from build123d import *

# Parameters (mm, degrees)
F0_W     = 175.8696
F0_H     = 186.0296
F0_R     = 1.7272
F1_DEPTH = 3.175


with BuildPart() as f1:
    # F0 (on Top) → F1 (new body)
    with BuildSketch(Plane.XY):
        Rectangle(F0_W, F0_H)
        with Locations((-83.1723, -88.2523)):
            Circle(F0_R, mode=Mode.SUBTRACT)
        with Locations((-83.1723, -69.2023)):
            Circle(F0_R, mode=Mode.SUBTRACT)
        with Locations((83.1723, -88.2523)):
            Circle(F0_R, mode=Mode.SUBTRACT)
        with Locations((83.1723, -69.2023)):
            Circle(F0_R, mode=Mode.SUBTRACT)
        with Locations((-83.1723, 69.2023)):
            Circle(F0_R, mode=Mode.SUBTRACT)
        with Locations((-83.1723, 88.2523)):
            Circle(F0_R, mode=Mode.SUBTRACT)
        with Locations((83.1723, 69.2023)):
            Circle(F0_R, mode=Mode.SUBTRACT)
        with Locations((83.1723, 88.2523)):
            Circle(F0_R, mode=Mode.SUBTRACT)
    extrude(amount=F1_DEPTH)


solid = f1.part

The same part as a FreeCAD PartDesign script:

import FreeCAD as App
import Part
import Sketcher
from FreeCAD import Vector
Q = App.Units.Quantity

doc = App.newDocument("Part")
params = doc.addObject("Spreadsheet::Sheet", "Params")
for row, (alias, value) in enumerate([
    ("sketch1_diameter", "0.136 in"),
    ("sketch1_width", "6.924 in"),
    ("sketch1_height", "7.324 in"),
    ("pad1_length", "0.125 in"),
], start=1):
    params.set(f"A{row}", alias)
    params.set(f"B{row}", "=" + value)
    params.setAlias(f"B{row}", alias)

body = doc.addObject("PartDesign::Body", "Body")

sketch1 = body.newObject("Sketcher::SketchObject", "Sketch")
sketch1.AttachmentSupport = (doc.getObject("XY_Plane"), [""])
sketch1.MapMode = "FlatFace"
sketch1.addGeometry(Part.LineSegment(Vector(-87.9, 93, 0), Vector(-87.9, -93, 0)), False)
sketch1.addGeometry(Part.LineSegment(Vector(-87.9, -93, 0), Vector(87.9, -93, 0)), False)
sketch1.addGeometry(Part.LineSegment(Vector(87.9, -93, 0), Vector(87.9, 93, 0)), False)
sketch1.addGeometry(Part.LineSegment(Vector(87.9, 93, 0), Vector(-87.9, 93, 0)), False)
sketch1.addGeometry(Part.Circle(Vector(-83.2, -88.3, 0), Vector(0, 0, 1), 1.7), False)
sketch1.addGeometry(Part.Circle(Vector(-83.2, -69.2, 0), Vector(0, 0, 1), 1.7), False)
sketch1.addGeometry(Part.Circle(Vector(83.2, -88.3, 0), Vector(0, 0, 1), 1.7), False)
sketch1.addGeometry(Part.Circle(Vector(83.2, -69.2, 0), Vector(0, 0, 1), 1.7), False)
sketch1.addGeometry(Part.Circle(Vector(-83.2, 69.2, 0), Vector(0, 0, 1), 1.7), False)
sketch1.addGeometry(Part.Circle(Vector(-83.2, 88.3, 0), Vector(0, 0, 1), 1.7), False)
sketch1.addGeometry(Part.Circle(Vector(83.2, 69.2, 0), Vector(0, 0, 1), 1.7), False)
sketch1.addGeometry(Part.Circle(Vector(83.2, 88.3, 0), Vector(0, 0, 1), 1.7), False)
sketch1.addConstraint(Sketcher.Constraint("Coincident", 0, 2, 1, 1))
sketch1.addConstraint(Sketcher.Constraint("Coincident", 1, 2, 2, 1))
sketch1.addConstraint(Sketcher.Constraint("Coincident", 2, 2, 3, 1))
sketch1.addConstraint(Sketcher.Constraint("Coincident", 3, 2, 0, 1))
sketch1.addConstraint(Sketcher.Constraint("Vertical", 0))
sketch1.addConstraint(Sketcher.Constraint("Horizontal", 1))
sketch1.addConstraint(Sketcher.Constraint("Vertical", 2))
sketch1.addConstraint(Sketcher.Constraint("Horizontal", 3))
sketch1.addConstraint(Sketcher.Constraint("Equal", 4, 5))
sketch1.addConstraint(Sketcher.Constraint("Equal", 5, 6))
sketch1.addConstraint(Sketcher.Constraint("Equal", 6, 7))
sketch1.addConstraint(Sketcher.Constraint("Equal", 7, 8))
sketch1.addConstraint(Sketcher.Constraint("Equal", 8, 9))
sketch1.addConstraint(Sketcher.Constraint("Equal", 9, 10))
sketch1.addConstraint(Sketcher.Constraint("Equal", 10, 11))
sketch1.addConstraint(Sketcher.Constraint("Symmetric", 7, 3, 8, 3, -1, 1))
sketch1.addConstraint(Sketcher.Constraint("Symmetric", 6, 3, 9, 3, -1, 1))
sketch1.addConstraint(Sketcher.Constraint("Symmetric", 5, 3, 10, 3, -1, 1))
sketch1.addConstraint(Sketcher.Constraint("Symmetric", 4, 3, 11, 3, -1, 1))
sketch1.addConstraint(Sketcher.Constraint("Symmetric", 0, 2, 2, 2, -1, 1))
sketch1.addConstraint(Sketcher.Constraint("Symmetric", 4, 3, 6, 3, -2))
sketch1.addConstraint(Sketcher.Constraint("Symmetric", 5, 3, 7, 3, -2))
sketch1.addConstraint(Sketcher.Constraint("Vertical", 4, 3, 5, 3))
sketch1.addConstraint(Sketcher.Constraint("Diameter", 4, Q("0.136 in")))
sketch1.addConstraint(Sketcher.Constraint("DistanceX", 1, 1, 1, 2, Q("6.924 in")))
sketch1.addConstraint(Sketcher.Constraint("DistanceY", 0, 2, 0, 1, Q("7.324 in")))
sketch1.addConstraint(Sketcher.Constraint("DistanceY", 4, 3, 5, 3, Q("0.75 in")))
sketch1.addConstraint(Sketcher.Constraint("DistanceX", 4, 3, 6, 3, Q("6.549 in")))
sketch1.addConstraint(Sketcher.Constraint("DistanceY", 5, 3, 8, 3, Q("5.449 in")))
sketch1.setExpression("Constraints[23]", "Params.sketch1_diameter")
sketch1.setExpression("Constraints[24]", "Params.sketch1_width")
sketch1.setExpression("Constraints[25]", "Params.sketch1_height")
pad1 = body.newObject("PartDesign::Pad", "Pad")
pad1.Profile = sketch1
pad1.setExpression("Length", "Params.pad1_length")

doc.recompute()
